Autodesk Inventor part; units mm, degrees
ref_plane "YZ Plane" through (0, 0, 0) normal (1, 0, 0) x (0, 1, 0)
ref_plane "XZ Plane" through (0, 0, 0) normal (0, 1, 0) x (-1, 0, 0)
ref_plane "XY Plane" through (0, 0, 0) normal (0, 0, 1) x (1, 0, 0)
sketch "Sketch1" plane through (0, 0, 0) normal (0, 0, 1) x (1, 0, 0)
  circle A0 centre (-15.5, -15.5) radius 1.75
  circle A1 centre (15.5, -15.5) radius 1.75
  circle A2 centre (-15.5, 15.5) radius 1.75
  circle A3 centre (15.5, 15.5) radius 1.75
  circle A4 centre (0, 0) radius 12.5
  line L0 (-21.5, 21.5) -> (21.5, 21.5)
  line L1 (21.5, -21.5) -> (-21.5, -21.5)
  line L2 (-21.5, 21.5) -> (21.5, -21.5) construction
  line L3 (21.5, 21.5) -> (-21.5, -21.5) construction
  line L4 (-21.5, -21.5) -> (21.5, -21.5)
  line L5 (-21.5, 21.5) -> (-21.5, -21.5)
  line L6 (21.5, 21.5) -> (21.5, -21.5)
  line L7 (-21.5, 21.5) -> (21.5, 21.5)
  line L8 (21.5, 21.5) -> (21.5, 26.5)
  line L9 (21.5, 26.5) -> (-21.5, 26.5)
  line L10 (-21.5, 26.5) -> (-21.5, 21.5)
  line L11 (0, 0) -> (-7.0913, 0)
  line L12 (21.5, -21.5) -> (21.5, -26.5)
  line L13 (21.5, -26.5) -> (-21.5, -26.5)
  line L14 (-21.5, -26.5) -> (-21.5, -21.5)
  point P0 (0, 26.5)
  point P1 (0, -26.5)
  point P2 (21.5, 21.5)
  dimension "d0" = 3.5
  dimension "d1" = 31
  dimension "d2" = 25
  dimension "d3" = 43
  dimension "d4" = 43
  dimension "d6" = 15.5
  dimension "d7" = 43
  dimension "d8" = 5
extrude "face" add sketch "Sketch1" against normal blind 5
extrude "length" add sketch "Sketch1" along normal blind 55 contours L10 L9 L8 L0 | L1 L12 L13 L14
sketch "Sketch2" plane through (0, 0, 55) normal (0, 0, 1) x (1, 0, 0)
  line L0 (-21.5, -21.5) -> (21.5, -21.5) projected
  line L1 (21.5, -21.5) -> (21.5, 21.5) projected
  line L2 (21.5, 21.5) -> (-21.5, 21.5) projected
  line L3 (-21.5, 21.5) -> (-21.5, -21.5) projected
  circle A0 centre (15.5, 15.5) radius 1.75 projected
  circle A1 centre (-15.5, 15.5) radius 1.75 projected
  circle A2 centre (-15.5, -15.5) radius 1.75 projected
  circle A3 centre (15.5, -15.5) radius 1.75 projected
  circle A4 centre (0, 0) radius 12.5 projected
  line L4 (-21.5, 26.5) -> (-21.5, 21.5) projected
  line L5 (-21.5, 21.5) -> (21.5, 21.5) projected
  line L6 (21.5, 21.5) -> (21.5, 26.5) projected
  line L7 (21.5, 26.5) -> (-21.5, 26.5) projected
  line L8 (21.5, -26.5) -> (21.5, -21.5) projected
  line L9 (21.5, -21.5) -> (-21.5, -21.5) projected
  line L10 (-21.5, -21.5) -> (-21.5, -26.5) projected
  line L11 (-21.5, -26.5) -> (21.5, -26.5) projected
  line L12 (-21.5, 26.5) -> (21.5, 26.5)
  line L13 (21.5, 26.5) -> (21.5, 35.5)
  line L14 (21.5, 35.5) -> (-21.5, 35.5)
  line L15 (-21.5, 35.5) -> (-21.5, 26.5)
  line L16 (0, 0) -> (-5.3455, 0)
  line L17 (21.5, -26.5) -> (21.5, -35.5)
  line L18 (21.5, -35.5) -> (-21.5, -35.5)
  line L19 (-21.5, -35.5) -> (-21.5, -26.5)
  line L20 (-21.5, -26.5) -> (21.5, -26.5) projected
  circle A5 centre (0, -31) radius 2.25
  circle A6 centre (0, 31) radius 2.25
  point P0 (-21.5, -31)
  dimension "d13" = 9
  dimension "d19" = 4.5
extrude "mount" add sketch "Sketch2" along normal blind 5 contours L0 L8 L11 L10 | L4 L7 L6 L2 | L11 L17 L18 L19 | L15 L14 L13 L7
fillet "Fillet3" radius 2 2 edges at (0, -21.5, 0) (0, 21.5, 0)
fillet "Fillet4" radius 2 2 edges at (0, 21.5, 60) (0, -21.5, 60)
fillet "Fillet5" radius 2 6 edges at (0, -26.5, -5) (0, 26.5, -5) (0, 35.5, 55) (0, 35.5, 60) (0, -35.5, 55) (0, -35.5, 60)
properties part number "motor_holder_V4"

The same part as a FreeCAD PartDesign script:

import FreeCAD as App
import Part
import Sketcher
from FreeCAD import Vector
Q = App.Units.Quantity


def edges_at(feature, points):
    """Names of the edges that pass closest to the given points."""
    edges = feature.Shape.Edges
    near = lambda p: min(range(len(edges)), key=lambda i: edges[i].distToShape(Part.Vertex(*p))[0])
    return sorted({f"Edge{near(p) + 1}" for p in points})


def add_polygon(sketch, points):
    """Adds a closed chain of lines whose ends are joined by coincident constraints."""
    first, n = sketch.GeometryCount, len(points)
    for a, b in zip(points, points[1:] + points[:1]):
        sketch.addGeometry(Part.LineSegment(App.Vector(*a, 0), App.Vector(*b, 0)), False)
    for i in range(n):
        sketch.addConstraint(Sketcher.Constraint("Coincident", first + i, 2, first + (i + 1) % n, 1))

doc = App.newDocument("Part")
body = doc.addObject("PartDesign::Body", "Body")

# Sketch on XY plane
sketch1 = body.newObject("Sketcher::SketchObject", "Sketch")
sketch1.AttachmentSupport = (doc.getObject("XY_Plane"), [""])
sketch1.MapMode = "FlatFace"
add_polygon(sketch1, [(-21.5, 26.5), (-21.5, -26.5), (21.5, -26.5), (21.5, 26.5)])  # lines 0-3
sketch1.addGeometry(Part.Circle(Vector(15.5, 15.5, 0), Vector(0, 0, 1), 1.75), False)  # 4
sketch1.addGeometry(Part.Circle(Vector(-15.5, -15.5, 0), Vector(0, 0, 1), 1.75), False)  # 5
sketch1.addGeometry(Part.Circle(Vector(15.5, -15.5, 0), Vector(0, 0, 1), 1.75), False)  # 6
sketch1.addGeometry(Part.Circle(Vector(-15.5, 15.5, 0), Vector(0, 0, 1), 1.75), False)  # 7
sketch1.addGeometry(Part.Circle(Vector(0, 0, 0), Vector(0, 0, 1), 12.5), False)  # 8
sketch1.addConstraint([
    Sketcher.Constraint("Vertical", 0),
    Sketcher.Constraint("Horizontal", 1),
    Sketcher.Constraint("Vertical", 2),
    Sketcher.Constraint("Horizontal", 3),
    Sketcher.Constraint("Coincident", 8, 3, -1, 1),
    Sketcher.Constraint("Equal", 4, 5),
    Sketcher.Constraint("Equal", 5, 6),
    Sketcher.Constraint("Equal", 6, 7),
    Sketcher.Constraint("Symmetric", 4, 3, 5, 3, -1, 1),
    Sketcher.Constraint("Symmetric", 6, 3, 7, 3, -1, 1),
    Sketcher.Constraint("Symmetric", 0, 2, 2, 2, -1, 1),
    Sketcher.Constraint("Symmetric", 5, 3, 6, 3, -2),
    Sketcher.Constraint("Diameter", 8, Q("25 mm")),
    Sketcher.Constraint("Diameter", 4, Q("3.5 mm")),
    Sketcher.Constraint("DistanceX", 1, 1, 1, 2, Q("43 mm")),
    Sketcher.Constraint("DistanceX", 5, 3, 4, 3, Q("31 mm")),
    Sketcher.Constraint("DistanceY", 5, 3, 4, 3, Q("31 mm")),
    Sketcher.Constraint("DistanceY", 0, 2, 0, 1, Q("53 mm")),
])
pad1 = body.newObject("PartDesign::Pad", "Pad")
pad1.Profile = sketch1
pad1.Length = 5
pad1.Reversed = True

# Sketch on XY plane
sketch2 = body.newObject("Sketcher::SketchObject", "Sketch001")
sketch2.AttachmentSupport = (doc.getObject("XY_Plane"), [""])
sketch2.MapMode = "FlatFace"
add_polygon(sketch2, [(-21.5, 26.5), (-21.5, 21.5), (21.5, 21.5), (21.5, 26.5)])  # lines 0-3
add_polygon(sketch2, [(21.5, -21.5), (-21.5, -21.5), (-21.5, -26.5), (21.5, -26.5)])  # lines 4-7
sketch2.addConstraint([
    Sketcher.Constraint("Vertical", 0),
    Sketcher.Constraint("Horizontal", 1),
    Sketcher.Constraint("Vertical", 2),
    Sketcher.Constraint("Horizontal", 3),
    Sketcher.Constraint("Horizontal", 4),
    Sketcher.Constraint("Vertical", 5),
    Sketcher.Constraint("Horizontal", 6),
    Sketcher.Constraint("Vertical", 7),
    Sketcher.Constraint("Symmetric", 1, 2, 4, 2, -1, 1),
    Sketcher.Constraint("Symmetric", 3, 2, 6, 2, -1, 1),
    Sketcher.Constraint("Vertical", 3, 2, 4, 2),
    Sketcher.Constraint("DistanceX", 1, 1, 1, 2, Q("43 mm")),
    Sketcher.Constraint("DistanceY", 0, 2, 0, 1, Q("5 mm")),
    Sketcher.Constraint("DistanceY", 4, 2, 0, 2, Q("43 mm")),
])
pad2 = body.newObject("PartDesign::Pad", "Pad001")
pad2.Profile = sketch2
pad2.Length = 55

# Sketch on XY plane
sketch3 = body.newObject("Sketcher::SketchObject", "Sketch002")
sketch3.AttachmentSupport = (doc.getObject("XY_Plane"), [""])
sketch3.MapMode = "FlatFace"
sketch3.AttachmentOffset = App.Placement(Vector(0, 0, 55), App.Rotation())
add_polygon(sketch3, [(21.5, -21.5), (-21.5, -21.5), (-21.5, -35.5), (21.5, -35.5)])  # lines 0-3
sketch3.addGeometry(Part.Circle(Vector(0, -31, 0), Vector(0, 0, 1), 2.25), False)  # 4
add_polygon(sketch3, [(-21.5, 21.5), (21.5, 21.5), (21.5, 35.5), (-21.5, 35.5)])  # lines 5-8
sketch3.addGeometry(Part.Circle(Vector(0, 31, 0), Vector(0, 0, 1), 2.25), False)  # 9
sketch3.addConstraint([
    Sketcher.Constraint("Horizontal", 0),
    Sketcher.Constraint("Vertical", 1),
    Sketcher.Constraint("Horizontal", 2),
    Sketcher.Constraint("Vertical", 3),
    Sketcher.Constraint("Horizontal", 5),
    Sketcher.Constraint("Vertical", 6),
    Sketcher.Constraint("Horizontal", 7),
    Sketcher.Constraint("Vertical", 8),
    Sketcher.Constraint("Equal", 4, 9),
    Sketcher.Constraint("Symmetric", 4, 3, 9, 3, -1, 1),
    Sketcher.Constraint("Symmetric", 0, 2, 5, 2, -1, 1),
    Sketcher.Constraint("Symmetric", 2, 2, 7, 2, -1, 1),
    Sketcher.Constraint("PointOnObject", 4, 3, -2),
    Sketcher.Constraint("Vertical", 3, 2, 5, 2),
    Sketcher.Constraint("Diameter", 4, Q("4.5 mm")),
    Sketcher.Constraint("DistanceY", 1, 2, 4, 3, Q("4.5 mm")),
    Sketcher.Constraint("DistanceX", 0, 2, 0, 1, Q("43 mm")),
    Sketcher.Constraint("DistanceY", 1, 2, 1, 1, Q("14 mm")),
    Sketcher.Constraint("DistanceY", 4, 3, -1, 1, Q("31 mm")),
])
pad3 = body.newObject("PartDesign::Pad", "Pad002")
pad3.Profile = sketch3
pad3.Length = 5
doc.recompute()

fillet = body.newObject("PartDesign::Fillet", "Fillet")
fillet.Base = (pad3, edges_at(pad3, [(0, -21.5, 0), (0, 21.5, 0)]))
fillet.Radius = 2
doc.recompute()

fillet2 = body.newObject("PartDesign::Fillet", "Fillet001")
fillet2.Base = (fillet, edges_at(fillet, [(0, 21.5, 60), (0, -21.5, 60)]))
fillet2.Radius = 2
doc.recompute()

fillet3 = body.newObject("PartDesign::Fillet", "Fillet002")
fillet3.Base = (fillet2, edges_at(fillet2, [
    (0, -26.5, -5),
    (0, 26.5, -5),
    (0, 35.5, 55),
    (0, 35.5, 60),
    (0, -35.5, 55),
    (0, -35.5, 60),
]))
fillet3.Radius = 2

doc.recompute()
